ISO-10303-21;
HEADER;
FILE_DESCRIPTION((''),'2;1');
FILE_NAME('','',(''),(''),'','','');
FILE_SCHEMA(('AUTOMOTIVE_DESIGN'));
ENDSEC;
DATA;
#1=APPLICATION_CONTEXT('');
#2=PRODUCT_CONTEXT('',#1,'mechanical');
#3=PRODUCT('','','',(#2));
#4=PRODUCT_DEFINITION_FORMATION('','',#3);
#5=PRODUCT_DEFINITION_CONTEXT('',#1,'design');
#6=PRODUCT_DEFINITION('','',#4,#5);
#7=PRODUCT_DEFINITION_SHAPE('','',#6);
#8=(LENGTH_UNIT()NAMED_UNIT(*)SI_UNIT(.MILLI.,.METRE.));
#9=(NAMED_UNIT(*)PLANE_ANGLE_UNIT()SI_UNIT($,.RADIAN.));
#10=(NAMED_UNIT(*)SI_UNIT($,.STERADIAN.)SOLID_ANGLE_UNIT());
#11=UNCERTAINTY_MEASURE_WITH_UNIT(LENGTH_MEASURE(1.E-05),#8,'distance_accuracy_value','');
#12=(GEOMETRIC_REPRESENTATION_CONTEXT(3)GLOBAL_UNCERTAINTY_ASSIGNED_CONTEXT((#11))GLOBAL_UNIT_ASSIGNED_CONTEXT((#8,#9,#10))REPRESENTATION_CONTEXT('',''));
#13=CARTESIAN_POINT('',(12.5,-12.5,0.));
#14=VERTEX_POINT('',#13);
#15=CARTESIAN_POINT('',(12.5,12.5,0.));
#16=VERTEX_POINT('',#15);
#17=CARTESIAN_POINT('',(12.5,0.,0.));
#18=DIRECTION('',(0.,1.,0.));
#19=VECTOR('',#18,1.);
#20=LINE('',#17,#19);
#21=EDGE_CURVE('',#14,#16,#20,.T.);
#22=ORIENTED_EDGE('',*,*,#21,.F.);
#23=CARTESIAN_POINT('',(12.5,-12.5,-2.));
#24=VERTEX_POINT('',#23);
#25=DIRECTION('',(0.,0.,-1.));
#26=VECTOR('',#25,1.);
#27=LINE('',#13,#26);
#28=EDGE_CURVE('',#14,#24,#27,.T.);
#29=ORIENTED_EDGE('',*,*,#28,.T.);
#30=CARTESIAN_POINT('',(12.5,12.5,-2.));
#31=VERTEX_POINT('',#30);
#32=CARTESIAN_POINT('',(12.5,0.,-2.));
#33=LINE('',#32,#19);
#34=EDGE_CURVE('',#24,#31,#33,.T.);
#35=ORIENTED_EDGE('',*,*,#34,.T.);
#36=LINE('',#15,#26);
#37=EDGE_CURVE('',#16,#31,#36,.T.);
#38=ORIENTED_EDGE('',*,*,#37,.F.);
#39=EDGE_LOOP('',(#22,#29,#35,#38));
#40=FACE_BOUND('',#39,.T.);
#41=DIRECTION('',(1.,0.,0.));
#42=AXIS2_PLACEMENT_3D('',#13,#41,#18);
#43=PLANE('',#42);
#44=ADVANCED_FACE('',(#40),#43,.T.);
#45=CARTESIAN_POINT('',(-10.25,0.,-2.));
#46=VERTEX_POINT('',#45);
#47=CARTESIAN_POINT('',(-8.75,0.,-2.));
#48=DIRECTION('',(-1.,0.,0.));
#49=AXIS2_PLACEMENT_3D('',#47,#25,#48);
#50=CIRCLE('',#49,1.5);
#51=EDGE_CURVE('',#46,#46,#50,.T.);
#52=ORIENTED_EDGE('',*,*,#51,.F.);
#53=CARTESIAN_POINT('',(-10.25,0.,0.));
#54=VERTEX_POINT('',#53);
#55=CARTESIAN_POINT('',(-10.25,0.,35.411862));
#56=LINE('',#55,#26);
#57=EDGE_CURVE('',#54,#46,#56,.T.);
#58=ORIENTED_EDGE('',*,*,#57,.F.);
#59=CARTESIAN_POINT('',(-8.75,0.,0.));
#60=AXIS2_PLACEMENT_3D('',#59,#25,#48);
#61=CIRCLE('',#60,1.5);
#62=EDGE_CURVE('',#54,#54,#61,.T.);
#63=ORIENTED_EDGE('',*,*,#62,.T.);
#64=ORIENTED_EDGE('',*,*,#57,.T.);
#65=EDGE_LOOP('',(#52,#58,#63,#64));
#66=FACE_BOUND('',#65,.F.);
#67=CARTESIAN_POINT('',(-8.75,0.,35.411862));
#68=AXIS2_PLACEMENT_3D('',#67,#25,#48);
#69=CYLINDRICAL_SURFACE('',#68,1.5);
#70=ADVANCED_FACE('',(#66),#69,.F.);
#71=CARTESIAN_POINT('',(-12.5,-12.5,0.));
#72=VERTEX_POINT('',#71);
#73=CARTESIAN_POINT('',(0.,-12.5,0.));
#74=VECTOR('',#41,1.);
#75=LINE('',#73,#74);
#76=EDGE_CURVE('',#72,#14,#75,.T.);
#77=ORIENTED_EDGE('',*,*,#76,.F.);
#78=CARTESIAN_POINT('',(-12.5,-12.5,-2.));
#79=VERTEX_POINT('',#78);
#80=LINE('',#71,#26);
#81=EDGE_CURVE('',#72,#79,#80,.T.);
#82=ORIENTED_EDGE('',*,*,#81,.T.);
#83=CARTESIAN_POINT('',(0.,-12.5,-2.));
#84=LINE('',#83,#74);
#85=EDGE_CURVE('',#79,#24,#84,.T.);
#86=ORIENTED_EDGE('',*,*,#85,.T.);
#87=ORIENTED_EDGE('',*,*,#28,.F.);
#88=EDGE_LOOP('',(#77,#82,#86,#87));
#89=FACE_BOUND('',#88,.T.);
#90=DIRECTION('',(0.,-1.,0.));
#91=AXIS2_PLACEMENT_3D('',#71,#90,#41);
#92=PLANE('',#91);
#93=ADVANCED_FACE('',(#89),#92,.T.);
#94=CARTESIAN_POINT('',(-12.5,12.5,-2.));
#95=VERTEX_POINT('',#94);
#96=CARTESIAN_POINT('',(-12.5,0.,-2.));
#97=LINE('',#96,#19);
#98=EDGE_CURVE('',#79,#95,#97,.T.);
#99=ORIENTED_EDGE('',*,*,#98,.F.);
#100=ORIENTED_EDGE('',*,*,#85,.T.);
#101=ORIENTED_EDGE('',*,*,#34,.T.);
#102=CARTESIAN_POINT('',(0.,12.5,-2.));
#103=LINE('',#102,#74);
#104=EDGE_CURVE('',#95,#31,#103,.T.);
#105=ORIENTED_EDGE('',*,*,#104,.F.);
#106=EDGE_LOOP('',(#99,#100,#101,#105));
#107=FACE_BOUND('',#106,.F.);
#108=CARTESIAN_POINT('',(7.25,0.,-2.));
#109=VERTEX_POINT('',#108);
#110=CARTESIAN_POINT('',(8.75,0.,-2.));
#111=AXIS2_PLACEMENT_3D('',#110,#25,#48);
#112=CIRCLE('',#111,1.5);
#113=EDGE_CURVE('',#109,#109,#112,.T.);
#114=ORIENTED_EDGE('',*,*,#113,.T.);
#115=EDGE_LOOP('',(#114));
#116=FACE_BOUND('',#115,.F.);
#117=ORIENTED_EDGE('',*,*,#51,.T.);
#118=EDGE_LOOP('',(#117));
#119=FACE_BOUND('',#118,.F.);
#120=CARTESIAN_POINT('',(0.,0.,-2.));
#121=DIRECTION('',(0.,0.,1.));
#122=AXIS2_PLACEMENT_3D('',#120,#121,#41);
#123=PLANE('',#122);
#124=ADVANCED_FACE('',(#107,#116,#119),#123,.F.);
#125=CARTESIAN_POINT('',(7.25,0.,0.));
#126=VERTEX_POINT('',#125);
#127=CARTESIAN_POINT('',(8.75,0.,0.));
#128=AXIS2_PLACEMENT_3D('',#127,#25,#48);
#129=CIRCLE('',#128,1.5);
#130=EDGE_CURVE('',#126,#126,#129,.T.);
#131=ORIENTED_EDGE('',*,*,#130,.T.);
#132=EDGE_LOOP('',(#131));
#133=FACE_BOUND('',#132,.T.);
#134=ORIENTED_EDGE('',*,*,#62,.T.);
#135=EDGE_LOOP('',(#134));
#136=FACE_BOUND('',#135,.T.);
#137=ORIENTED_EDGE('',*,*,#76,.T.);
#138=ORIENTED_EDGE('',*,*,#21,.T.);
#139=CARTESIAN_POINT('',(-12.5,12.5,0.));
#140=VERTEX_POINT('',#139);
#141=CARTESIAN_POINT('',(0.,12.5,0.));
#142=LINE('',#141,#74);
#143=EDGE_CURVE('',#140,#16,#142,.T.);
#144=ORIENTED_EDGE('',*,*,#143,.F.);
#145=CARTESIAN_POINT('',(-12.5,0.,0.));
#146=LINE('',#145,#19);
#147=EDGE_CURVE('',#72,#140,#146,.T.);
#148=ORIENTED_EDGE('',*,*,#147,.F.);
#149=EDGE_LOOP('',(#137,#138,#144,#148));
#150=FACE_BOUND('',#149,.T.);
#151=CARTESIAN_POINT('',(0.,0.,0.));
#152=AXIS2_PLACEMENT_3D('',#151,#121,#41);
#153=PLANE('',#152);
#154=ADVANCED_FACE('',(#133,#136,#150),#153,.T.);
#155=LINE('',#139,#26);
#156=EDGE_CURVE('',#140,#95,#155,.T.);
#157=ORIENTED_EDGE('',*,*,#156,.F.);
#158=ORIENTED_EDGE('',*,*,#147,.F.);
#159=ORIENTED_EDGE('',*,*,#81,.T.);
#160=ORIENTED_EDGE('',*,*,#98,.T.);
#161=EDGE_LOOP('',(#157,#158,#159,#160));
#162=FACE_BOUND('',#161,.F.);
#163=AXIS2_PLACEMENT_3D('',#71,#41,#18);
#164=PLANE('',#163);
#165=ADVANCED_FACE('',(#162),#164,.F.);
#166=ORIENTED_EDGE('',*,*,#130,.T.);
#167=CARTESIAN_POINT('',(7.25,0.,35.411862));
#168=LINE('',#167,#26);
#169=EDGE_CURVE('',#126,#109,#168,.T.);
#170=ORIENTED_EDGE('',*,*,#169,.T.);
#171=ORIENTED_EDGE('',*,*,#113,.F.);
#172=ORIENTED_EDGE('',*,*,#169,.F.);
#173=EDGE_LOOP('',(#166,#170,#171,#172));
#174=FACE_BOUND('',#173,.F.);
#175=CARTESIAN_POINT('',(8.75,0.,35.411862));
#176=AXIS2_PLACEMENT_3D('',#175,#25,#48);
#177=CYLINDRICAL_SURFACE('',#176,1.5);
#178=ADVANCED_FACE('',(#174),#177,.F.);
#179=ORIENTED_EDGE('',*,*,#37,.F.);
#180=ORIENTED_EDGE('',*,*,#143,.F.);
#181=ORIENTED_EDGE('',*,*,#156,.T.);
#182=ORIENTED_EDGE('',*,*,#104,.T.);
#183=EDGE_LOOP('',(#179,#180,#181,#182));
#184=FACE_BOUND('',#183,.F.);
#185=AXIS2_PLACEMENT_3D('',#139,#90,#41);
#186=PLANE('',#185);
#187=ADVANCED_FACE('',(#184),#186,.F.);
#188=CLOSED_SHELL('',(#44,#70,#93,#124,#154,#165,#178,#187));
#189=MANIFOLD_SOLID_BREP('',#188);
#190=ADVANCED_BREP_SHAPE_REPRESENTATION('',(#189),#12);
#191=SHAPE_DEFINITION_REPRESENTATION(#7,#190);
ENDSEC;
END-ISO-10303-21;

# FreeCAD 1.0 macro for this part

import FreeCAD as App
import Part
import Sketcher
from FreeCAD import Vector
Q = App.Units.Quantity


def add_polygon(sketch, points):
    """Adds a closed chain of lines whose ends are joined by coincident constraints."""
    first, n = sketch.GeometryCount, len(points)
    for a, b in zip(points, points[1:] + points[:1]):
        sketch.addGeometry(Part.LineSegment(App.Vector(*a, 0), App.Vector(*b, 0)), False)
    for i in range(n):
        sketch.addConstraint(Sketcher.Constraint("Coincident", first + i, 2, first + (i + 1) % n, 1))

doc = App.newDocument("Part")
body = doc.addObject("PartDesign::Body", "Body")

sketch1 = body.newObject("Sketcher::SketchObject", "Sketch")
sketch1.AttachmentSupport = (doc.getObject("XY_Plane"), [""])
sketch1.MapMode = "FlatFace"
add_polygon(sketch1, [(-12.5, 12.5), (-12.5, -12.5), (12.5, -12.5), (12.5, 12.5)])
sketch1.addConstraint([
    Sketcher.Constraint("Vertical", 0),
    Sketcher.Constraint("Horizontal", 1),
    Sketcher.Constraint("Vertical", 2),
    Sketcher.Constraint("Horizontal", 3),
    Sketcher.Constraint("Symmetric", 0, 2, 2, 2, -1, 1),
    Sketcher.Constraint("Equal", 3, 0),
    Sketcher.Constraint("DistanceX", 1, 1, 1, 2, Q("25 mm")),
])
pad1 = body.newObject("PartDesign::Pad", "Pad")
pad1.Profile = sketch1
pad1.Length = 2
pad1.Reversed = True

sketch2 = body.newObject("Sketcher::SketchObject", "Sketch001")
sketch2.AttachmentSupport = (doc.getObject("XY_Plane"), [""])
sketch2.MapMode = "FlatFace"
sketch2.addGeometry([
    Part.Circle(Vector(-8.75, 0, 0), Vector(0, 0, 1), 1.5),
    Part.Circle(Vector(8.75, 0, 0), Vector(0, 0, 1), 1.5),
], False)
sketch2.addConstraint([
    Sketcher.Constraint("Equal", 0, 1),
    Sketcher.Constraint("Symmetric", 0, 3, 1, 3, -1, 1),
    Sketcher.Constraint("PointOnObject", 0, 3, -1),
    Sketcher.Constraint("Diameter", 0, Q("3 mm")),
    Sketcher.Constraint("DistanceX", 0, 3, 1, 3, Q("17.5 mm")),
])
doc.recompute()
hole = body.newObject("PartDesign::Hole", "Hole")
hole.Profile = sketch2
hole.ThreadType = "None"
hole.Diameter = 3
hole.DepthType = "ThroughAll"

doc.recompute()
